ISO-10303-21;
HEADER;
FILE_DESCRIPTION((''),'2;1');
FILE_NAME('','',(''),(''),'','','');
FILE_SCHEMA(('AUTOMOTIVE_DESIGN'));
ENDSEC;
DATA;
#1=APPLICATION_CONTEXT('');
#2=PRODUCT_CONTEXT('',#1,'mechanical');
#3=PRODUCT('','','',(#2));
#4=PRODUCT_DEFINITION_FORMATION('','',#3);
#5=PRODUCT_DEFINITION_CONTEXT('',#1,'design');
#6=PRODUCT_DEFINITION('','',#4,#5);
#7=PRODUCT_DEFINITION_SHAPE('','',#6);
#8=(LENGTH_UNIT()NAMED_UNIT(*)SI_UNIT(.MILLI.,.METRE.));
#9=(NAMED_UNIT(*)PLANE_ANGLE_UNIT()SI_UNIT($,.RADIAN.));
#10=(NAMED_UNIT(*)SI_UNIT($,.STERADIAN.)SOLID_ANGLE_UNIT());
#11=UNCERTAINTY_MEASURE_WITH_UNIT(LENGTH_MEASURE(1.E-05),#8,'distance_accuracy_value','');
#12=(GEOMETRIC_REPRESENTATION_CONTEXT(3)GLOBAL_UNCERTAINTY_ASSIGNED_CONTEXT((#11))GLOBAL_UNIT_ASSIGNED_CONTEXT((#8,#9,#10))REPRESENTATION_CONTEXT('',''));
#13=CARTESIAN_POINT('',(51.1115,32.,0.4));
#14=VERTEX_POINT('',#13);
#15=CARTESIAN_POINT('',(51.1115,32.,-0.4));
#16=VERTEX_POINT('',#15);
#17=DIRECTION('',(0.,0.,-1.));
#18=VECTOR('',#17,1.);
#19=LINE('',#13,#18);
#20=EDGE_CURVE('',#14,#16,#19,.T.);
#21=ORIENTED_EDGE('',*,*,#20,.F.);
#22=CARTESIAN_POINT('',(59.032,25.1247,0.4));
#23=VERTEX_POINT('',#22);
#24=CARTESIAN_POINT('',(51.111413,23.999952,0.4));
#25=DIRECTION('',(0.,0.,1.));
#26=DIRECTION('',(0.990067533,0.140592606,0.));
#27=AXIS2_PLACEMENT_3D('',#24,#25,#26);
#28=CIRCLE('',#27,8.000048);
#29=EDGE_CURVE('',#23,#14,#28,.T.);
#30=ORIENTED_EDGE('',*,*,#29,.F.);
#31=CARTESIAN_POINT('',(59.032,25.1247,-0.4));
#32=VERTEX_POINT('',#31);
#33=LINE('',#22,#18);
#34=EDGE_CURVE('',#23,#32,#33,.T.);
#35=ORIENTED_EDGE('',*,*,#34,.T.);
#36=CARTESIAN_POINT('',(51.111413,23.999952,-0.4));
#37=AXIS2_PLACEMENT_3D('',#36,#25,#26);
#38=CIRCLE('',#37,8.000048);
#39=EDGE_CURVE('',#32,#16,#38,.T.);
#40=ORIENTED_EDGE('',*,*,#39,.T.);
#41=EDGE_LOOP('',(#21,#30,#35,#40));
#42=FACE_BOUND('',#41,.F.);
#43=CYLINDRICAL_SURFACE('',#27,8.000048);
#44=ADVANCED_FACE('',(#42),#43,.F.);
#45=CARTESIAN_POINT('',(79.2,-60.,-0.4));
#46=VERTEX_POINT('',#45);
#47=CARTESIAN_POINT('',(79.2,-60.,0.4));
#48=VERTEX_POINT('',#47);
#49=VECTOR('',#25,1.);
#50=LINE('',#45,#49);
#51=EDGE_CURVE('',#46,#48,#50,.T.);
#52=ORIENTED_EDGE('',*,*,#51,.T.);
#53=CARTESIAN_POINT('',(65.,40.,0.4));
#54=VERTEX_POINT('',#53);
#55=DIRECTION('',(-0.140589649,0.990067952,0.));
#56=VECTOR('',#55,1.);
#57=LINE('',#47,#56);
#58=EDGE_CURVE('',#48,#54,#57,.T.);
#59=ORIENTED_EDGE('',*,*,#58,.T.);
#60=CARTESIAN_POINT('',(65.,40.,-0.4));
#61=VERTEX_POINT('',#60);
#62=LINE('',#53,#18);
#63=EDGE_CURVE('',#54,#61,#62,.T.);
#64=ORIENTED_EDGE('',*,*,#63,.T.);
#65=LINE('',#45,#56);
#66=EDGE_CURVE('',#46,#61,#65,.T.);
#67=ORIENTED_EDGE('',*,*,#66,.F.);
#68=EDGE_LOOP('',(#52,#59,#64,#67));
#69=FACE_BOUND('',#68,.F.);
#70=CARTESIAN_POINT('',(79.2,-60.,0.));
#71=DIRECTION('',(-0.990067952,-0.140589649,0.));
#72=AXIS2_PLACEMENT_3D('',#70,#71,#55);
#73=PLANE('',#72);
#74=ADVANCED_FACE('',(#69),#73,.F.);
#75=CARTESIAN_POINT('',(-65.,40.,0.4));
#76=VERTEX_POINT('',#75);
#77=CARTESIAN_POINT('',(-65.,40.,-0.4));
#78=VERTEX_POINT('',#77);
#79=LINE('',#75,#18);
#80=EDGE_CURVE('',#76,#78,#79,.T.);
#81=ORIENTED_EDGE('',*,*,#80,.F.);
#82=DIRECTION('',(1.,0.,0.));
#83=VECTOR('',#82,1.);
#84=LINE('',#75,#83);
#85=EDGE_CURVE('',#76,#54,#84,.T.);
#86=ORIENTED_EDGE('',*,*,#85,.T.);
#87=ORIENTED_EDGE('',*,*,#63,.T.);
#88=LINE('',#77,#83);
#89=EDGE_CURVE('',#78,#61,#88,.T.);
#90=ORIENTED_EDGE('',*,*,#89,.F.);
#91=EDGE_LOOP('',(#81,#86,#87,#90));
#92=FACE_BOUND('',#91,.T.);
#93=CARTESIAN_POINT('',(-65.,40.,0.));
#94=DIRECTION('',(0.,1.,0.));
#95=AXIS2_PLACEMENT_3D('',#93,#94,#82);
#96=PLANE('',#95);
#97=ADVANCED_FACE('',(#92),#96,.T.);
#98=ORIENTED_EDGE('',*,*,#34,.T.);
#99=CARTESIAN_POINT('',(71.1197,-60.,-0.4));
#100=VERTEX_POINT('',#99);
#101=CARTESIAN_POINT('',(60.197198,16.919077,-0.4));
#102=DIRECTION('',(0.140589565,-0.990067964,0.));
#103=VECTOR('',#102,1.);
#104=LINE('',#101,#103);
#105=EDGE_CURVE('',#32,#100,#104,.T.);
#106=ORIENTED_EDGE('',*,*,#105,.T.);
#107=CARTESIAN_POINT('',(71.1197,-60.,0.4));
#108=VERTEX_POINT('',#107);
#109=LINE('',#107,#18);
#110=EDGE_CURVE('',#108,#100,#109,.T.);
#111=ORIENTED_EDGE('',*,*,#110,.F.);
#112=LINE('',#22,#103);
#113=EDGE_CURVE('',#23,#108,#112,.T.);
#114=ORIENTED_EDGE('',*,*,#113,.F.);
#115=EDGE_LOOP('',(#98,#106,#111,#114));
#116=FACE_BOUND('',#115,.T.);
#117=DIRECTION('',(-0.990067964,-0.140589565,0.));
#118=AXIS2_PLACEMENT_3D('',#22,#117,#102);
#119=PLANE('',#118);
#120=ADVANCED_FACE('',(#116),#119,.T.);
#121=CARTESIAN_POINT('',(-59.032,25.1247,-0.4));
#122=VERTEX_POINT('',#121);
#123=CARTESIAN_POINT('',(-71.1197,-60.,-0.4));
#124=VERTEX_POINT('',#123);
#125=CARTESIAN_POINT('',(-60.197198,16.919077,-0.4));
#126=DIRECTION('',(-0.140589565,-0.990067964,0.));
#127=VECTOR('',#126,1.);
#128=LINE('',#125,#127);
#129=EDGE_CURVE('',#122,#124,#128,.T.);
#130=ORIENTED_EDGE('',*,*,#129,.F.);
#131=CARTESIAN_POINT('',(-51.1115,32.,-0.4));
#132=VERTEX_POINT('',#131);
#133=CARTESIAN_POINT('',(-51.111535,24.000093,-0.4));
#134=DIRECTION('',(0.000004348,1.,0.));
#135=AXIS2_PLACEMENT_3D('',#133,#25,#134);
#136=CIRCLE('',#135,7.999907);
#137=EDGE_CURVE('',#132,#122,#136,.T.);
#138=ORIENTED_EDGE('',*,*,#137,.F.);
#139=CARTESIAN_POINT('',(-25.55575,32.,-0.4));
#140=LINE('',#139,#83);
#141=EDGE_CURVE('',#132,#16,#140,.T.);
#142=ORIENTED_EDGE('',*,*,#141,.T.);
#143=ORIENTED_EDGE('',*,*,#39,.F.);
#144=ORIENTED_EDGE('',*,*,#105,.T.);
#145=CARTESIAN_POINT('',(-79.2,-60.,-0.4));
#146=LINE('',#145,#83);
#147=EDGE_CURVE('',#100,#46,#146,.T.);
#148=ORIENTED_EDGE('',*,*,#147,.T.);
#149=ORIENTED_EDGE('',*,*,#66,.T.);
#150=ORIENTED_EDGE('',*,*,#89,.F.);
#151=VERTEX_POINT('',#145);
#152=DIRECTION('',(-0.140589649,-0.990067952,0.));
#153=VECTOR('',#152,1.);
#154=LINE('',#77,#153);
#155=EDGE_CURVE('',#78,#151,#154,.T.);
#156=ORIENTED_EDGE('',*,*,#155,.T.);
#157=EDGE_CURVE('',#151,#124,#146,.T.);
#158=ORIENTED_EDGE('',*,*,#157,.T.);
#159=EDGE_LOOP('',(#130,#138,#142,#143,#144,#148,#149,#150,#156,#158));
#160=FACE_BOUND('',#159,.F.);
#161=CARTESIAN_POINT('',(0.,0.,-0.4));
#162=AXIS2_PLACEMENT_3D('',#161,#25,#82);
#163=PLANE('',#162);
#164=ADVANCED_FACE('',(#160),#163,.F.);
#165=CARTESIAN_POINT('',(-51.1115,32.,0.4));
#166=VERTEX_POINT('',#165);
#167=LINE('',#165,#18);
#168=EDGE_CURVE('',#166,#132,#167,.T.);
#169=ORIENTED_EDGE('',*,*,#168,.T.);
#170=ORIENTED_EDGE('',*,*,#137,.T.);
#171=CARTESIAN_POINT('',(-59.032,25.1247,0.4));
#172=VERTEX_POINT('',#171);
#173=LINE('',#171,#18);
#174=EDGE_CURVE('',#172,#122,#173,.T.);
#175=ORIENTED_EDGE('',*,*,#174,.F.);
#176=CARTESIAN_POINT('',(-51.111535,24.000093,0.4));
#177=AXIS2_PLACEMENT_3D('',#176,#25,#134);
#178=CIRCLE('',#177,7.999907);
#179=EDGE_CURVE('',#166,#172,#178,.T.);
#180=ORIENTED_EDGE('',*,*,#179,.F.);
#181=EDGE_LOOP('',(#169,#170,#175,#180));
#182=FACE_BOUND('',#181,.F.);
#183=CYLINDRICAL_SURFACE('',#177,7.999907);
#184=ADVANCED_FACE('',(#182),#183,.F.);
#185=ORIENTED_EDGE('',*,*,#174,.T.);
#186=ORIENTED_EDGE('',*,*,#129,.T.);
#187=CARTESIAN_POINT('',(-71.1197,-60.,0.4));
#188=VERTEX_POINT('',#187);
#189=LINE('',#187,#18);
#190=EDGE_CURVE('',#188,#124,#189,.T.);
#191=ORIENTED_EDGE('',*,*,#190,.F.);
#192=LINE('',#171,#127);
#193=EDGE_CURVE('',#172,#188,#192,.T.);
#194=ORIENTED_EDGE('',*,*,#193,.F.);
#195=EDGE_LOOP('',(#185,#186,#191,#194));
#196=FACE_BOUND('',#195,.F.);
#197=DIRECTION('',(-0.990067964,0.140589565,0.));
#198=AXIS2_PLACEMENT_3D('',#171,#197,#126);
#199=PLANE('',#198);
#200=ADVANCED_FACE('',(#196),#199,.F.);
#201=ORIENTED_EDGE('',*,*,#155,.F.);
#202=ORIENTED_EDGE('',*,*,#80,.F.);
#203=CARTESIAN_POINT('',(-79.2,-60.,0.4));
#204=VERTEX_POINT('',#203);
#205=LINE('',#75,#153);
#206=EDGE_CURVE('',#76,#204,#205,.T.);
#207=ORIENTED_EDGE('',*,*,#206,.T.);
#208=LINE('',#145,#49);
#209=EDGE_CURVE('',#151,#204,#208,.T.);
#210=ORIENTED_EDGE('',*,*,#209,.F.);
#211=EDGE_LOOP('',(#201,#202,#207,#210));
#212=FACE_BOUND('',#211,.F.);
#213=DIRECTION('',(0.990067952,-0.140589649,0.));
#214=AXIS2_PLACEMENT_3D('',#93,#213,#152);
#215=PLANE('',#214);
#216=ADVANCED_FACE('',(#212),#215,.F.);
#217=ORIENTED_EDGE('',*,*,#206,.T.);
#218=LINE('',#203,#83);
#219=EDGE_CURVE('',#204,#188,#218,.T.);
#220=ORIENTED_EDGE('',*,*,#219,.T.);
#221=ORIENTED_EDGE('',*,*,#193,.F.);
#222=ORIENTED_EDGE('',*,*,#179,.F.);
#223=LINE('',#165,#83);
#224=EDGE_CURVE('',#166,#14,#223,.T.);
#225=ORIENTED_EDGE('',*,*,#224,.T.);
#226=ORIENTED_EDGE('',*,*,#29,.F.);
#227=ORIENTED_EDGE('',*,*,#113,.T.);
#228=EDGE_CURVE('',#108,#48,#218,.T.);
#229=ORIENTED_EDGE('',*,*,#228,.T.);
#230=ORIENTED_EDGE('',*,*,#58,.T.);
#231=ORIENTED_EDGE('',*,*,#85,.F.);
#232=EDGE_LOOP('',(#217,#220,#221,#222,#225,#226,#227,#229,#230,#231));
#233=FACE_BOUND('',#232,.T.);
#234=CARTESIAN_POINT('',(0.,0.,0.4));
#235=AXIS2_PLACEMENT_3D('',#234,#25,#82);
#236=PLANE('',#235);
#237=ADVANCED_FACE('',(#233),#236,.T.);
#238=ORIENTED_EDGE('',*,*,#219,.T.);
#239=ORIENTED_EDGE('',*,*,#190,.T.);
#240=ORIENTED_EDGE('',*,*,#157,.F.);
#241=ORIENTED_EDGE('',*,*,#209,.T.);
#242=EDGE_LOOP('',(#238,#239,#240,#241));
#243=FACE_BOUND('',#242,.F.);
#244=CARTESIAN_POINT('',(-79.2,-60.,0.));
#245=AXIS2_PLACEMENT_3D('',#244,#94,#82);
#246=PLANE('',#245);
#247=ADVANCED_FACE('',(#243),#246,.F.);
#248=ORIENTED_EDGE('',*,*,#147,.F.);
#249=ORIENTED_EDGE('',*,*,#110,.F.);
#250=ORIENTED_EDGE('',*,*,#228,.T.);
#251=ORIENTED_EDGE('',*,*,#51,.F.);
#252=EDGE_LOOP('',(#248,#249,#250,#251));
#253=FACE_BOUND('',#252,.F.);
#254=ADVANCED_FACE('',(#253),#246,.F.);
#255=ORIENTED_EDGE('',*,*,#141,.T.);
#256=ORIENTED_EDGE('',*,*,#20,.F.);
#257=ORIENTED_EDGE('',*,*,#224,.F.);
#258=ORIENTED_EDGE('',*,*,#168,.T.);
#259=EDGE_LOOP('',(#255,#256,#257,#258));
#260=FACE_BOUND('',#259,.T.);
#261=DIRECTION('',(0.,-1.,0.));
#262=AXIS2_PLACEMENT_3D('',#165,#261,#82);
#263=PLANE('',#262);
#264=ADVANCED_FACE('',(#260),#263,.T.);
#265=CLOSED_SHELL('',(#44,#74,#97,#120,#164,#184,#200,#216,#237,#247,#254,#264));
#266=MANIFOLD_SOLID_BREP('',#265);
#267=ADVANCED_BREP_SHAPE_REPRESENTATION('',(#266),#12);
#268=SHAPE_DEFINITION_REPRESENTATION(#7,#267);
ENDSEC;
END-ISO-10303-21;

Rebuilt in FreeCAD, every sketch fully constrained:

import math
import FreeCAD as App
import Part
import Sketcher
Q = App.Units.Quantity

doc = App.newDocument("Part")
params = doc.addObject("Spreadsheet::Sheet", "Params")
for row, (alias, value) in enumerate([
    ("sketch1_width", "130 mm"),
    ("sketch1_width2", "158.4 mm"),
    ("pad1_length", "0.8 mm"),
    ("sketch2_radius", "8 mm"),
], start=1):
    params.set(f"A{row}", alias)
    params.set(f"B{row}", "=" + value)
    params.setAlias(f"B{row}", alias)

body = doc.addObject("PartDesign::Body", "Body")

# Sketch on XY plane
sketch1 = body.newObject("Sketcher::SketchObject", "Sketch")
sketch1.AttachmentSupport = (doc.getObject("XY_Plane"), [""])
sketch1.MapMode = "FlatFace"
sketch1.addGeometry([
    Part.LineSegment(App.Vector(-65, 40, 0), App.Vector(-79, -60, 0)),
    Part.LineSegment(App.Vector(-79, -60, 0), App.Vector(79, -60, 0)),
    Part.LineSegment(App.Vector(79, -60, 0), App.Vector(65, 40, 0)),
    Part.LineSegment(App.Vector(65, 40, 0), App.Vector(-65, 40, 0)),
], False)
sketch1.addConstraint([
    Sketcher.Constraint("Coincident", 0, 2, 1, 1),
    Sketcher.Constraint("Coincident", 1, 2, 2, 1),
    Sketcher.Constraint("Coincident", 2, 2, 3, 1),
    Sketcher.Constraint("Coincident", 3, 2, 0, 1),
    Sketcher.Constraint("Horizontal", 1),
    Sketcher.Constraint("Horizontal", 3),
    Sketcher.Constraint("Equal", 0, 2),
    Sketcher.Constraint("DistanceX", 3, 2, 3, 1, Q("130 mm")),
    Sketcher.Constraint("DistanceX", 1, 1, 1, 2, Q("158.4 mm")),
    Sketcher.Constraint("DistanceY", 0, 2, -1, 1, Q("60 mm")),
    Sketcher.Constraint("DistanceY", 1, 2, 2, 2, Q("100 mm")),
    Sketcher.Constraint("DistanceX", -1, 1, 2, 2, Q("65 mm")),
])
sketch1.setExpression("Constraints[7]", "Params.sketch1_width")
sketch1.setExpression("Constraints[8]", "Params.sketch1_width2")
pad1 = body.newObject("PartDesign::Pad", "Pad")
pad1.Profile = sketch1
pad1.setExpression("Length", "Params.pad1_length")
pad1.Midplane = True

# Sketch on XY plane
sketch2 = body.newObject("Sketcher::SketchObject", "Sketch001")
sketch2.AttachmentSupport = (doc.getObject("XY_Plane"), [""])
sketch2.MapMode = "FlatFace"
sketch2.AttachmentOffset = App.Placement(App.Vector(0, 0, 0.4), App.Rotation())
sketch2.addGeometry([
    Part.LineSegment(App.Vector(51, 32, 0), App.Vector(-51, 32, 0)),  # 0
    Part.ArcOfCircle(Part.Circle(App.Vector(-51, 24, 0), App.Vector(0, 0, 1), 8), math.radians(90), math.radians(172)),  # 1
    Part.LineSegment(App.Vector(-59, 25, 0), App.Vector(-71, -60, 0)),  # 2
    Part.LineSegment(App.Vector(-71, -60, 0), App.Vector(71, -60, 0)),  # 3
    Part.LineSegment(App.Vector(71, -60, 0), App.Vector(59, 25, 0)),  # 4
    Part.ArcOfCircle(Part.Circle(App.Vector(51, 24, 0), App.Vector(0, 0, 1), 8), math.radians(8), math.radians(90)),  # 5
], False)
sketch2.addConstraint([
    Sketcher.Constraint("Tangent", 0, 2, 1, 1),
    Sketcher.Constraint("Tangent", 1, 2, 2, 1),
    Sketcher.Constraint("Coincident", 2, 2, 3, 1),
    Sketcher.Constraint("Coincident", 3, 2, 4, 1),
    Sketcher.Constraint("Tangent", 4, 2, 5, 1),
    Sketcher.Constraint("Tangent", 5, 2, 0, 1),
    Sketcher.Constraint("Horizontal", 0),
    Sketcher.Constraint("Horizontal", 3),
    Sketcher.Constraint("Equal", 1, 5),
    Sketcher.Constraint("Symmetric", 1, 2, 4, 2, -2),
    Sketcher.Constraint("Radius", 1, Q("8 mm")),
    Sketcher.Constraint("DistanceY", -1, 1, 1, 3, Q("24 mm")),
    Sketcher.Constraint("DistanceY", 2, 2, -1, 1, Q("60 mm")),
    Sketcher.Constraint("DistanceX", 0, 2, 0, 1, Q("102.223 mm")),
    Sketcher.Constraint("DistanceX", 3, 1, 3, 2, Q("142.2394 mm")),
])
sketch2.setExpression("Constraints[10]", "Params.sketch2_radius")
pocket1 = body.newObject("PartDesign::Pocket", "Pocket")
pocket1.Profile = sketch2
pocket1.Type = "ThroughAll"

doc.recompute()
